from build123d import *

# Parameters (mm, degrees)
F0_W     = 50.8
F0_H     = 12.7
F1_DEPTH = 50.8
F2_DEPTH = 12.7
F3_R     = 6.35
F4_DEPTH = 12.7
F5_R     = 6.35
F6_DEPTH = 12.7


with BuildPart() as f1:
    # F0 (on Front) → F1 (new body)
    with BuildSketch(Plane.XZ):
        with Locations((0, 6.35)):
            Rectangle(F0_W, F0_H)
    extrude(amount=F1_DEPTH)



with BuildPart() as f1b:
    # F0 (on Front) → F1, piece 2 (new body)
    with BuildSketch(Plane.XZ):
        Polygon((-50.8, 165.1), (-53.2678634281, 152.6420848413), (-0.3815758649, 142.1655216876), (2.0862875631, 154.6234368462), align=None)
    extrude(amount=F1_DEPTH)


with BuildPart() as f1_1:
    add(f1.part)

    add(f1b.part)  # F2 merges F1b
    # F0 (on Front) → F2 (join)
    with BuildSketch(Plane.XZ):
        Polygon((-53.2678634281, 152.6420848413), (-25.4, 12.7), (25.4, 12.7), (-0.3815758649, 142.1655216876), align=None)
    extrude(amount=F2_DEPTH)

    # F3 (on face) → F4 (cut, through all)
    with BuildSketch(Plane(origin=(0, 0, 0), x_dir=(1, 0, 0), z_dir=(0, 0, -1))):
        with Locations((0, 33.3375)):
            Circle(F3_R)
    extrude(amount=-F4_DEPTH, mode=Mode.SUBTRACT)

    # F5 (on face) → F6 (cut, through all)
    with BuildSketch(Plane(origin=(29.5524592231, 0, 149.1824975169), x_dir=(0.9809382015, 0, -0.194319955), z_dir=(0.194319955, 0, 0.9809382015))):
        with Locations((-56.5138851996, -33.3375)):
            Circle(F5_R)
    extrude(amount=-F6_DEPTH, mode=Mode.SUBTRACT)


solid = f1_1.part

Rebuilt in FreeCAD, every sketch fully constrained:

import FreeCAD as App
import Part
import Sketcher

V = App.Vector
Q = App.Units.Quantity


def add_polygon(sketch, points):
    """Adds a closed chain of lines whose ends are joined by coincident constraints."""
    first, n = sketch.GeometryCount, len(points)
    for a, b in zip(points, points[1:] + points[:1]):
        sketch.addGeometry(Part.LineSegment(App.Vector(*a, 0), App.Vector(*b, 0)), False)
    for i in range(n):
        sketch.addConstraint(Sketcher.Constraint("Coincident", first + i, 2, first + (i + 1) % n, 1))

doc = App.newDocument("Part")
body = doc.addObject("PartDesign::Body", "Body")

sketch1 = body.newObject("Sketcher::SketchObject", "Sketch")
sketch1.AttachmentSupport = (doc.getObject("XZ_Plane"), [""])
sketch1.MapMode = "FlatFace"
add_polygon(sketch1, [(-25, 13), (-25, 0), (25, 0), (25, 13)])
sketch1.addConstraint([
    Sketcher.Constraint("Vertical", 0),
    Sketcher.Constraint("Horizontal", 1),
    Sketcher.Constraint("Vertical", 2),
    Sketcher.Constraint("Horizontal", 3),
    Sketcher.Constraint("Symmetric", 0, 2, 1, 2, -1, 1),
    Sketcher.Constraint("DistanceX", 1, 1, 1, 2, Q("2 in")),
    Sketcher.Constraint("DistanceY", 0, 2, 0, 1, Q("0.5 in")),
])
pad1 = body.newObject("PartDesign::Pad", "Pad")
pad1.Profile = sketch1
pad1.Length = Q("2 in")
body2 = doc.addObject("PartDesign::Body", "Body001")

sketch2 = body2.newObject("Sketcher::SketchObject", "Sketch001")
sketch2.AttachmentSupport = (doc.getObject("XZ_Plane001"), [""])
sketch2.MapMode = "FlatFace"
add_polygon(sketch2, [(-51, 165), (-53, 153), (0, 142), (2, 155)])
sketch2.addConstraint([
    Sketcher.Constraint("Perpendicular", 0, 1),
    Sketcher.Constraint("Perpendicular", 1, 2),
    Sketcher.Constraint("Perpendicular", 2, 3),
    Sketcher.Constraint("DistanceX", 3, 2, -1, 1, Q("2 in")),
    Sketcher.Constraint("Distance", 0, Q("0.5 in")),
    Sketcher.Constraint("DistanceY", -1, 1, 3, 2, Q("6.5 in")),
    Sketcher.Constraint("DistanceY", -1, 1, 1, 2, 142.165522),
    Sketcher.Constraint("DistanceX", 0, 2, 2, 2, 55.354151),
])
pad2 = body2.newObject("PartDesign::Pad", "Pad001")
pad2.Profile = sketch2
pad2.Length = Q("2 in")
body.AllowCompound = True
doc.recompute()

boolean = body.newObject("PartDesign::Boolean", "Boolean")
boolean.Type = "Fuse"
boolean.addObjects([body2])

sketch3 = body.newObject("Sketcher::SketchObject", "Sketch002")
sketch3.AttachmentSupport = (doc.getObject("XZ_Plane"), [""])
sketch3.MapMode = "FlatFace"
add_polygon(sketch3, [(-53, 153), (-25, 13), (25, 13), (0, 142)])
sketch3.addConstraint([
    Sketcher.Constraint("Horizontal", 1),
    Sketcher.Constraint("Parallel", 0, 2),
    Sketcher.Constraint("DistanceX", 1, 1, 1, 2, Q("2 in")),
    Sketcher.Constraint("DistanceX", 0, 2, -1, 1, Q("1 in")),
    Sketcher.Constraint("DistanceY", -1, 1, 0, 2, Q("0.5 in")),
    Sketcher.Constraint("Distance", 0, 142.689891),
    Sketcher.Constraint("DistanceY", -1, 1, 2, 2, 142.165522),
    Sketcher.Constraint("Distance", 2, 132.007617),
])
pad3 = body.newObject("PartDesign::Pad", "Pad002")
pad3.Profile = sketch3
pad3.Length = Q("0.5 in")

sketch4 = body.newObject("Sketcher::SketchObject", "Sketch003")
sketch4.AttachmentSupport = (doc.getObject("XY_Plane"), [""])
sketch4.MapMode = "FlatFace"
sketch4.addGeometry(Part.Circle(V(0, -33, 0), V(0, 0, 1), 6), False)
sketch4.addConstraint([
    Sketcher.Constraint("PointOnObject", 0, 3, -2),
    Sketcher.Constraint("Diameter", 0, Q("0.5 in")),
    Sketcher.Constraint("DistanceY", 0, 3, -1, 1, Q("1.3125 in")),
])
pocket1 = body.newObject("PartDesign::Pocket", "Pocket")
pocket1.Profile = sketch4
pocket1.Length = Q("0.5 in")
pocket1.Reversed = True

sketch5 = body.newObject("Sketcher::SketchObject", "Sketch004")
sketch5.Placement = App.Placement(V(29.552459, 0, 149.182498), App.Rotation(V(0.980938201, 0, -0.194319955), V(0, 0.999999999, 0), V(0.194319955, 0, 0.980938201), "ZXY"))
sketch5.addGeometry(Part.Circle(V(-57, -33, 0), V(0, 0, 1), 6), False)
sketch5.addConstraint([
    Sketcher.Constraint("Diameter", 0, Q("0.5 in")),
    Sketcher.Constraint("DistanceY", 0, 3, -1, 1, Q("1.3125 in")),
    Sketcher.Constraint("DistanceX", 0, 3, -1, 1, 56.513885),
])
pocket2 = body.newObject("PartDesign::Pocket", "Pocket001")
pocket2.Profile = sketch5
pocket2.Type = "ThroughAll"

doc.recompute()
